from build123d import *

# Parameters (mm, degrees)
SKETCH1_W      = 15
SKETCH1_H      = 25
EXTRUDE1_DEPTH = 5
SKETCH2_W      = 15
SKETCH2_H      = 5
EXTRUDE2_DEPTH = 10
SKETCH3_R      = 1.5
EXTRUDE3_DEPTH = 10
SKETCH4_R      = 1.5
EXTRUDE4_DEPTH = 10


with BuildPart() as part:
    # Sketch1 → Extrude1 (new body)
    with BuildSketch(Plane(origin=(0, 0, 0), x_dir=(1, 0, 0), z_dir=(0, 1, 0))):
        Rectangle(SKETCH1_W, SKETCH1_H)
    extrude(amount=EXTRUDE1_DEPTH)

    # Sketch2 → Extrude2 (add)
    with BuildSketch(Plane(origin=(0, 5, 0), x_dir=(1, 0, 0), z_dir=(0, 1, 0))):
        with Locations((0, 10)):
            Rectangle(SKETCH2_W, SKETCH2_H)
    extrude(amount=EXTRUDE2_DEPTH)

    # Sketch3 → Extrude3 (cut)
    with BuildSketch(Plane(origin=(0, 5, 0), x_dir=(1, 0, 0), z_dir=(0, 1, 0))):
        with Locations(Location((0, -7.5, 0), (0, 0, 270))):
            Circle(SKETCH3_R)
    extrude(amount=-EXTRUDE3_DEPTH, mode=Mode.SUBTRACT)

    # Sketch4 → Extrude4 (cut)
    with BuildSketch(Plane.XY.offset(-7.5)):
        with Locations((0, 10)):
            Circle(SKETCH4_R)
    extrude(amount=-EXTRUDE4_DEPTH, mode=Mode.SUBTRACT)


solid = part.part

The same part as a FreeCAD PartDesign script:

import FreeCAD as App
import Part
import Sketcher

doc = App.newDocument("Part")
body = doc.addObject("PartDesign::Body", "Body")

sketch1 = body.newObject("Sketcher::SketchObject", "Sketch")
sketch1.AttachmentSupport = (doc.getObject("XZ_Plane"), [""])
sketch1.MapMode = "FlatFace"
sketch1.addGeometry([
    Part.LineSegment(App.Vector(-8, -12, 0), App.Vector(-8, 12, 0)),
    Part.LineSegment(App.Vector(-8, 12, 0), App.Vector(8, 12, 0)),
    Part.LineSegment(App.Vector(8, 12, 0), App.Vector(8, -12, 0)),
    Part.LineSegment(App.Vector(8, -12, 0), App.Vector(-8, -12, 0)),
], False)
sketch1.addConstraint([
    Sketcher.Constraint("Coincident", 0, 2, 1, 1),
    Sketcher.Constraint("Coincident", 1, 2, 2, 1),
    Sketcher.Constraint("Coincident", 2, 2, 3, 1),
    Sketcher.Constraint("Coincident", 3, 2, 0, 1),
    Sketcher.Constraint("Vertical", 0),
    Sketcher.Constraint("Horizontal", 1),
    Sketcher.Constraint("Vertical", 2),
    Sketcher.Constraint("Horizontal", 3),
    Sketcher.Constraint("Symmetric", 0, 2, 2, 2, -1, 1),
    Sketcher.Constraint("DistanceX", 1, 1, 1, 2, 15.0),
    Sketcher.Constraint("DistanceY", 0, 1, 0, 2, 25.0),
])
pad1 = body.newObject("PartDesign::Pad", "Pad")
pad1.Profile = sketch1
pad1.Length = 5
pad1.Reversed = True

sketch2 = body.newObject("Sketcher::SketchObject", "Sketch001")
sketch2.AttachmentSupport = (doc.getObject("XZ_Plane"), [""])
sketch2.MapMode = "FlatFace"
sketch2.AttachmentOffset = App.Placement(App.Vector(0, 0, -5), App.Rotation())
sketch2.addGeometry([
    Part.LineSegment(App.Vector(-8, -12, 0), App.Vector(-8, -8, 0)),
    Part.LineSegment(App.Vector(-8, -8, 0), App.Vector(8, -8, 0)),
    Part.LineSegment(App.Vector(8, -8, 0), App.Vector(8, -12, 0)),
    Part.LineSegment(App.Vector(8, -12, 0), App.Vector(-8, -12, 0)),
], False)
sketch2.addConstraint([
    Sketcher.Constraint("Coincident", 0, 2, 1, 1),
    Sketcher.Constraint("Coincident", 1, 2, 2, 1),
    Sketcher.Constraint("Coincident", 2, 2, 3, 1),
    Sketcher.Constraint("Coincident", 3, 2, 0, 1),
    Sketcher.Constraint("Vertical", 0),
    Sketcher.Constraint("Horizontal", 1),
    Sketcher.Constraint("Vertical", 2),
    Sketcher.Constraint("Horizontal", 3),
    Sketcher.Constraint("DistanceX", 1, 1, 1, 2, 15.0),
    Sketcher.Constraint("DistanceY", 0, 1, 0, 2, 5.0),
    Sketcher.Constraint("DistanceX", 0, 2, -1, 1, 7.5),
    Sketcher.Constraint("DistanceY", 0, 2, -1, 1, 7.5),
])
pad2 = body.newObject("PartDesign::Pad", "Pad001")
pad2.Profile = sketch2
pad2.Length = 10
pad2.Reversed = True

sketch3 = body.newObject("Sketcher::SketchObject", "Sketch002")
sketch3.AttachmentSupport = (doc.getObject("XZ_Plane"), [""])
sketch3.MapMode = "FlatFace"
sketch3.AttachmentOffset = App.Placement(App.Vector(0, 0, -5), App.Rotation())
sketch3.addGeometry(Part.Circle(App.Vector(0, 7.5, 0), App.Vector(0, 0, 1), 1.5), False)
sketch3.addConstraint([
    Sketcher.Constraint("PointOnObject", 0, 3, -2),
    Sketcher.Constraint("Diameter", 0, 3.0),
    Sketcher.Constraint("DistanceY", -1, 1, 0, 3, 7.5),
])
pocket1 = body.newObject("PartDesign::Pocket", "Pocket")
pocket1.Profile = sketch3
pocket1.Length = 10
pocket1.Reversed = True

sketch4 = body.newObject("Sketcher::SketchObject", "Sketch003")
sketch4.AttachmentSupport = (doc.getObject("XY_Plane"), [""])
sketch4.MapMode = "FlatFace"
sketch4.AttachmentOffset = App.Placement(App.Vector(0, 0, -7.5), App.Rotation())
sketch4.addGeometry(Part.Circle(App.Vector(0, 10, 0), App.Vector(0, 0, 1), 1.5), False)
sketch4.addConstraint([
    Sketcher.Constraint("PointOnObject", 0, 3, -2),
    Sketcher.Constraint("Diameter", 0, 3.0),
    Sketcher.Constraint("DistanceY", -1, 1, 0, 3, 10.0),
])
pocket2 = body.newObject("PartDesign::Pocket", "Pocket001")
pocket2.Profile = sketch4
pocket2.Length = 10

doc.recompute()
